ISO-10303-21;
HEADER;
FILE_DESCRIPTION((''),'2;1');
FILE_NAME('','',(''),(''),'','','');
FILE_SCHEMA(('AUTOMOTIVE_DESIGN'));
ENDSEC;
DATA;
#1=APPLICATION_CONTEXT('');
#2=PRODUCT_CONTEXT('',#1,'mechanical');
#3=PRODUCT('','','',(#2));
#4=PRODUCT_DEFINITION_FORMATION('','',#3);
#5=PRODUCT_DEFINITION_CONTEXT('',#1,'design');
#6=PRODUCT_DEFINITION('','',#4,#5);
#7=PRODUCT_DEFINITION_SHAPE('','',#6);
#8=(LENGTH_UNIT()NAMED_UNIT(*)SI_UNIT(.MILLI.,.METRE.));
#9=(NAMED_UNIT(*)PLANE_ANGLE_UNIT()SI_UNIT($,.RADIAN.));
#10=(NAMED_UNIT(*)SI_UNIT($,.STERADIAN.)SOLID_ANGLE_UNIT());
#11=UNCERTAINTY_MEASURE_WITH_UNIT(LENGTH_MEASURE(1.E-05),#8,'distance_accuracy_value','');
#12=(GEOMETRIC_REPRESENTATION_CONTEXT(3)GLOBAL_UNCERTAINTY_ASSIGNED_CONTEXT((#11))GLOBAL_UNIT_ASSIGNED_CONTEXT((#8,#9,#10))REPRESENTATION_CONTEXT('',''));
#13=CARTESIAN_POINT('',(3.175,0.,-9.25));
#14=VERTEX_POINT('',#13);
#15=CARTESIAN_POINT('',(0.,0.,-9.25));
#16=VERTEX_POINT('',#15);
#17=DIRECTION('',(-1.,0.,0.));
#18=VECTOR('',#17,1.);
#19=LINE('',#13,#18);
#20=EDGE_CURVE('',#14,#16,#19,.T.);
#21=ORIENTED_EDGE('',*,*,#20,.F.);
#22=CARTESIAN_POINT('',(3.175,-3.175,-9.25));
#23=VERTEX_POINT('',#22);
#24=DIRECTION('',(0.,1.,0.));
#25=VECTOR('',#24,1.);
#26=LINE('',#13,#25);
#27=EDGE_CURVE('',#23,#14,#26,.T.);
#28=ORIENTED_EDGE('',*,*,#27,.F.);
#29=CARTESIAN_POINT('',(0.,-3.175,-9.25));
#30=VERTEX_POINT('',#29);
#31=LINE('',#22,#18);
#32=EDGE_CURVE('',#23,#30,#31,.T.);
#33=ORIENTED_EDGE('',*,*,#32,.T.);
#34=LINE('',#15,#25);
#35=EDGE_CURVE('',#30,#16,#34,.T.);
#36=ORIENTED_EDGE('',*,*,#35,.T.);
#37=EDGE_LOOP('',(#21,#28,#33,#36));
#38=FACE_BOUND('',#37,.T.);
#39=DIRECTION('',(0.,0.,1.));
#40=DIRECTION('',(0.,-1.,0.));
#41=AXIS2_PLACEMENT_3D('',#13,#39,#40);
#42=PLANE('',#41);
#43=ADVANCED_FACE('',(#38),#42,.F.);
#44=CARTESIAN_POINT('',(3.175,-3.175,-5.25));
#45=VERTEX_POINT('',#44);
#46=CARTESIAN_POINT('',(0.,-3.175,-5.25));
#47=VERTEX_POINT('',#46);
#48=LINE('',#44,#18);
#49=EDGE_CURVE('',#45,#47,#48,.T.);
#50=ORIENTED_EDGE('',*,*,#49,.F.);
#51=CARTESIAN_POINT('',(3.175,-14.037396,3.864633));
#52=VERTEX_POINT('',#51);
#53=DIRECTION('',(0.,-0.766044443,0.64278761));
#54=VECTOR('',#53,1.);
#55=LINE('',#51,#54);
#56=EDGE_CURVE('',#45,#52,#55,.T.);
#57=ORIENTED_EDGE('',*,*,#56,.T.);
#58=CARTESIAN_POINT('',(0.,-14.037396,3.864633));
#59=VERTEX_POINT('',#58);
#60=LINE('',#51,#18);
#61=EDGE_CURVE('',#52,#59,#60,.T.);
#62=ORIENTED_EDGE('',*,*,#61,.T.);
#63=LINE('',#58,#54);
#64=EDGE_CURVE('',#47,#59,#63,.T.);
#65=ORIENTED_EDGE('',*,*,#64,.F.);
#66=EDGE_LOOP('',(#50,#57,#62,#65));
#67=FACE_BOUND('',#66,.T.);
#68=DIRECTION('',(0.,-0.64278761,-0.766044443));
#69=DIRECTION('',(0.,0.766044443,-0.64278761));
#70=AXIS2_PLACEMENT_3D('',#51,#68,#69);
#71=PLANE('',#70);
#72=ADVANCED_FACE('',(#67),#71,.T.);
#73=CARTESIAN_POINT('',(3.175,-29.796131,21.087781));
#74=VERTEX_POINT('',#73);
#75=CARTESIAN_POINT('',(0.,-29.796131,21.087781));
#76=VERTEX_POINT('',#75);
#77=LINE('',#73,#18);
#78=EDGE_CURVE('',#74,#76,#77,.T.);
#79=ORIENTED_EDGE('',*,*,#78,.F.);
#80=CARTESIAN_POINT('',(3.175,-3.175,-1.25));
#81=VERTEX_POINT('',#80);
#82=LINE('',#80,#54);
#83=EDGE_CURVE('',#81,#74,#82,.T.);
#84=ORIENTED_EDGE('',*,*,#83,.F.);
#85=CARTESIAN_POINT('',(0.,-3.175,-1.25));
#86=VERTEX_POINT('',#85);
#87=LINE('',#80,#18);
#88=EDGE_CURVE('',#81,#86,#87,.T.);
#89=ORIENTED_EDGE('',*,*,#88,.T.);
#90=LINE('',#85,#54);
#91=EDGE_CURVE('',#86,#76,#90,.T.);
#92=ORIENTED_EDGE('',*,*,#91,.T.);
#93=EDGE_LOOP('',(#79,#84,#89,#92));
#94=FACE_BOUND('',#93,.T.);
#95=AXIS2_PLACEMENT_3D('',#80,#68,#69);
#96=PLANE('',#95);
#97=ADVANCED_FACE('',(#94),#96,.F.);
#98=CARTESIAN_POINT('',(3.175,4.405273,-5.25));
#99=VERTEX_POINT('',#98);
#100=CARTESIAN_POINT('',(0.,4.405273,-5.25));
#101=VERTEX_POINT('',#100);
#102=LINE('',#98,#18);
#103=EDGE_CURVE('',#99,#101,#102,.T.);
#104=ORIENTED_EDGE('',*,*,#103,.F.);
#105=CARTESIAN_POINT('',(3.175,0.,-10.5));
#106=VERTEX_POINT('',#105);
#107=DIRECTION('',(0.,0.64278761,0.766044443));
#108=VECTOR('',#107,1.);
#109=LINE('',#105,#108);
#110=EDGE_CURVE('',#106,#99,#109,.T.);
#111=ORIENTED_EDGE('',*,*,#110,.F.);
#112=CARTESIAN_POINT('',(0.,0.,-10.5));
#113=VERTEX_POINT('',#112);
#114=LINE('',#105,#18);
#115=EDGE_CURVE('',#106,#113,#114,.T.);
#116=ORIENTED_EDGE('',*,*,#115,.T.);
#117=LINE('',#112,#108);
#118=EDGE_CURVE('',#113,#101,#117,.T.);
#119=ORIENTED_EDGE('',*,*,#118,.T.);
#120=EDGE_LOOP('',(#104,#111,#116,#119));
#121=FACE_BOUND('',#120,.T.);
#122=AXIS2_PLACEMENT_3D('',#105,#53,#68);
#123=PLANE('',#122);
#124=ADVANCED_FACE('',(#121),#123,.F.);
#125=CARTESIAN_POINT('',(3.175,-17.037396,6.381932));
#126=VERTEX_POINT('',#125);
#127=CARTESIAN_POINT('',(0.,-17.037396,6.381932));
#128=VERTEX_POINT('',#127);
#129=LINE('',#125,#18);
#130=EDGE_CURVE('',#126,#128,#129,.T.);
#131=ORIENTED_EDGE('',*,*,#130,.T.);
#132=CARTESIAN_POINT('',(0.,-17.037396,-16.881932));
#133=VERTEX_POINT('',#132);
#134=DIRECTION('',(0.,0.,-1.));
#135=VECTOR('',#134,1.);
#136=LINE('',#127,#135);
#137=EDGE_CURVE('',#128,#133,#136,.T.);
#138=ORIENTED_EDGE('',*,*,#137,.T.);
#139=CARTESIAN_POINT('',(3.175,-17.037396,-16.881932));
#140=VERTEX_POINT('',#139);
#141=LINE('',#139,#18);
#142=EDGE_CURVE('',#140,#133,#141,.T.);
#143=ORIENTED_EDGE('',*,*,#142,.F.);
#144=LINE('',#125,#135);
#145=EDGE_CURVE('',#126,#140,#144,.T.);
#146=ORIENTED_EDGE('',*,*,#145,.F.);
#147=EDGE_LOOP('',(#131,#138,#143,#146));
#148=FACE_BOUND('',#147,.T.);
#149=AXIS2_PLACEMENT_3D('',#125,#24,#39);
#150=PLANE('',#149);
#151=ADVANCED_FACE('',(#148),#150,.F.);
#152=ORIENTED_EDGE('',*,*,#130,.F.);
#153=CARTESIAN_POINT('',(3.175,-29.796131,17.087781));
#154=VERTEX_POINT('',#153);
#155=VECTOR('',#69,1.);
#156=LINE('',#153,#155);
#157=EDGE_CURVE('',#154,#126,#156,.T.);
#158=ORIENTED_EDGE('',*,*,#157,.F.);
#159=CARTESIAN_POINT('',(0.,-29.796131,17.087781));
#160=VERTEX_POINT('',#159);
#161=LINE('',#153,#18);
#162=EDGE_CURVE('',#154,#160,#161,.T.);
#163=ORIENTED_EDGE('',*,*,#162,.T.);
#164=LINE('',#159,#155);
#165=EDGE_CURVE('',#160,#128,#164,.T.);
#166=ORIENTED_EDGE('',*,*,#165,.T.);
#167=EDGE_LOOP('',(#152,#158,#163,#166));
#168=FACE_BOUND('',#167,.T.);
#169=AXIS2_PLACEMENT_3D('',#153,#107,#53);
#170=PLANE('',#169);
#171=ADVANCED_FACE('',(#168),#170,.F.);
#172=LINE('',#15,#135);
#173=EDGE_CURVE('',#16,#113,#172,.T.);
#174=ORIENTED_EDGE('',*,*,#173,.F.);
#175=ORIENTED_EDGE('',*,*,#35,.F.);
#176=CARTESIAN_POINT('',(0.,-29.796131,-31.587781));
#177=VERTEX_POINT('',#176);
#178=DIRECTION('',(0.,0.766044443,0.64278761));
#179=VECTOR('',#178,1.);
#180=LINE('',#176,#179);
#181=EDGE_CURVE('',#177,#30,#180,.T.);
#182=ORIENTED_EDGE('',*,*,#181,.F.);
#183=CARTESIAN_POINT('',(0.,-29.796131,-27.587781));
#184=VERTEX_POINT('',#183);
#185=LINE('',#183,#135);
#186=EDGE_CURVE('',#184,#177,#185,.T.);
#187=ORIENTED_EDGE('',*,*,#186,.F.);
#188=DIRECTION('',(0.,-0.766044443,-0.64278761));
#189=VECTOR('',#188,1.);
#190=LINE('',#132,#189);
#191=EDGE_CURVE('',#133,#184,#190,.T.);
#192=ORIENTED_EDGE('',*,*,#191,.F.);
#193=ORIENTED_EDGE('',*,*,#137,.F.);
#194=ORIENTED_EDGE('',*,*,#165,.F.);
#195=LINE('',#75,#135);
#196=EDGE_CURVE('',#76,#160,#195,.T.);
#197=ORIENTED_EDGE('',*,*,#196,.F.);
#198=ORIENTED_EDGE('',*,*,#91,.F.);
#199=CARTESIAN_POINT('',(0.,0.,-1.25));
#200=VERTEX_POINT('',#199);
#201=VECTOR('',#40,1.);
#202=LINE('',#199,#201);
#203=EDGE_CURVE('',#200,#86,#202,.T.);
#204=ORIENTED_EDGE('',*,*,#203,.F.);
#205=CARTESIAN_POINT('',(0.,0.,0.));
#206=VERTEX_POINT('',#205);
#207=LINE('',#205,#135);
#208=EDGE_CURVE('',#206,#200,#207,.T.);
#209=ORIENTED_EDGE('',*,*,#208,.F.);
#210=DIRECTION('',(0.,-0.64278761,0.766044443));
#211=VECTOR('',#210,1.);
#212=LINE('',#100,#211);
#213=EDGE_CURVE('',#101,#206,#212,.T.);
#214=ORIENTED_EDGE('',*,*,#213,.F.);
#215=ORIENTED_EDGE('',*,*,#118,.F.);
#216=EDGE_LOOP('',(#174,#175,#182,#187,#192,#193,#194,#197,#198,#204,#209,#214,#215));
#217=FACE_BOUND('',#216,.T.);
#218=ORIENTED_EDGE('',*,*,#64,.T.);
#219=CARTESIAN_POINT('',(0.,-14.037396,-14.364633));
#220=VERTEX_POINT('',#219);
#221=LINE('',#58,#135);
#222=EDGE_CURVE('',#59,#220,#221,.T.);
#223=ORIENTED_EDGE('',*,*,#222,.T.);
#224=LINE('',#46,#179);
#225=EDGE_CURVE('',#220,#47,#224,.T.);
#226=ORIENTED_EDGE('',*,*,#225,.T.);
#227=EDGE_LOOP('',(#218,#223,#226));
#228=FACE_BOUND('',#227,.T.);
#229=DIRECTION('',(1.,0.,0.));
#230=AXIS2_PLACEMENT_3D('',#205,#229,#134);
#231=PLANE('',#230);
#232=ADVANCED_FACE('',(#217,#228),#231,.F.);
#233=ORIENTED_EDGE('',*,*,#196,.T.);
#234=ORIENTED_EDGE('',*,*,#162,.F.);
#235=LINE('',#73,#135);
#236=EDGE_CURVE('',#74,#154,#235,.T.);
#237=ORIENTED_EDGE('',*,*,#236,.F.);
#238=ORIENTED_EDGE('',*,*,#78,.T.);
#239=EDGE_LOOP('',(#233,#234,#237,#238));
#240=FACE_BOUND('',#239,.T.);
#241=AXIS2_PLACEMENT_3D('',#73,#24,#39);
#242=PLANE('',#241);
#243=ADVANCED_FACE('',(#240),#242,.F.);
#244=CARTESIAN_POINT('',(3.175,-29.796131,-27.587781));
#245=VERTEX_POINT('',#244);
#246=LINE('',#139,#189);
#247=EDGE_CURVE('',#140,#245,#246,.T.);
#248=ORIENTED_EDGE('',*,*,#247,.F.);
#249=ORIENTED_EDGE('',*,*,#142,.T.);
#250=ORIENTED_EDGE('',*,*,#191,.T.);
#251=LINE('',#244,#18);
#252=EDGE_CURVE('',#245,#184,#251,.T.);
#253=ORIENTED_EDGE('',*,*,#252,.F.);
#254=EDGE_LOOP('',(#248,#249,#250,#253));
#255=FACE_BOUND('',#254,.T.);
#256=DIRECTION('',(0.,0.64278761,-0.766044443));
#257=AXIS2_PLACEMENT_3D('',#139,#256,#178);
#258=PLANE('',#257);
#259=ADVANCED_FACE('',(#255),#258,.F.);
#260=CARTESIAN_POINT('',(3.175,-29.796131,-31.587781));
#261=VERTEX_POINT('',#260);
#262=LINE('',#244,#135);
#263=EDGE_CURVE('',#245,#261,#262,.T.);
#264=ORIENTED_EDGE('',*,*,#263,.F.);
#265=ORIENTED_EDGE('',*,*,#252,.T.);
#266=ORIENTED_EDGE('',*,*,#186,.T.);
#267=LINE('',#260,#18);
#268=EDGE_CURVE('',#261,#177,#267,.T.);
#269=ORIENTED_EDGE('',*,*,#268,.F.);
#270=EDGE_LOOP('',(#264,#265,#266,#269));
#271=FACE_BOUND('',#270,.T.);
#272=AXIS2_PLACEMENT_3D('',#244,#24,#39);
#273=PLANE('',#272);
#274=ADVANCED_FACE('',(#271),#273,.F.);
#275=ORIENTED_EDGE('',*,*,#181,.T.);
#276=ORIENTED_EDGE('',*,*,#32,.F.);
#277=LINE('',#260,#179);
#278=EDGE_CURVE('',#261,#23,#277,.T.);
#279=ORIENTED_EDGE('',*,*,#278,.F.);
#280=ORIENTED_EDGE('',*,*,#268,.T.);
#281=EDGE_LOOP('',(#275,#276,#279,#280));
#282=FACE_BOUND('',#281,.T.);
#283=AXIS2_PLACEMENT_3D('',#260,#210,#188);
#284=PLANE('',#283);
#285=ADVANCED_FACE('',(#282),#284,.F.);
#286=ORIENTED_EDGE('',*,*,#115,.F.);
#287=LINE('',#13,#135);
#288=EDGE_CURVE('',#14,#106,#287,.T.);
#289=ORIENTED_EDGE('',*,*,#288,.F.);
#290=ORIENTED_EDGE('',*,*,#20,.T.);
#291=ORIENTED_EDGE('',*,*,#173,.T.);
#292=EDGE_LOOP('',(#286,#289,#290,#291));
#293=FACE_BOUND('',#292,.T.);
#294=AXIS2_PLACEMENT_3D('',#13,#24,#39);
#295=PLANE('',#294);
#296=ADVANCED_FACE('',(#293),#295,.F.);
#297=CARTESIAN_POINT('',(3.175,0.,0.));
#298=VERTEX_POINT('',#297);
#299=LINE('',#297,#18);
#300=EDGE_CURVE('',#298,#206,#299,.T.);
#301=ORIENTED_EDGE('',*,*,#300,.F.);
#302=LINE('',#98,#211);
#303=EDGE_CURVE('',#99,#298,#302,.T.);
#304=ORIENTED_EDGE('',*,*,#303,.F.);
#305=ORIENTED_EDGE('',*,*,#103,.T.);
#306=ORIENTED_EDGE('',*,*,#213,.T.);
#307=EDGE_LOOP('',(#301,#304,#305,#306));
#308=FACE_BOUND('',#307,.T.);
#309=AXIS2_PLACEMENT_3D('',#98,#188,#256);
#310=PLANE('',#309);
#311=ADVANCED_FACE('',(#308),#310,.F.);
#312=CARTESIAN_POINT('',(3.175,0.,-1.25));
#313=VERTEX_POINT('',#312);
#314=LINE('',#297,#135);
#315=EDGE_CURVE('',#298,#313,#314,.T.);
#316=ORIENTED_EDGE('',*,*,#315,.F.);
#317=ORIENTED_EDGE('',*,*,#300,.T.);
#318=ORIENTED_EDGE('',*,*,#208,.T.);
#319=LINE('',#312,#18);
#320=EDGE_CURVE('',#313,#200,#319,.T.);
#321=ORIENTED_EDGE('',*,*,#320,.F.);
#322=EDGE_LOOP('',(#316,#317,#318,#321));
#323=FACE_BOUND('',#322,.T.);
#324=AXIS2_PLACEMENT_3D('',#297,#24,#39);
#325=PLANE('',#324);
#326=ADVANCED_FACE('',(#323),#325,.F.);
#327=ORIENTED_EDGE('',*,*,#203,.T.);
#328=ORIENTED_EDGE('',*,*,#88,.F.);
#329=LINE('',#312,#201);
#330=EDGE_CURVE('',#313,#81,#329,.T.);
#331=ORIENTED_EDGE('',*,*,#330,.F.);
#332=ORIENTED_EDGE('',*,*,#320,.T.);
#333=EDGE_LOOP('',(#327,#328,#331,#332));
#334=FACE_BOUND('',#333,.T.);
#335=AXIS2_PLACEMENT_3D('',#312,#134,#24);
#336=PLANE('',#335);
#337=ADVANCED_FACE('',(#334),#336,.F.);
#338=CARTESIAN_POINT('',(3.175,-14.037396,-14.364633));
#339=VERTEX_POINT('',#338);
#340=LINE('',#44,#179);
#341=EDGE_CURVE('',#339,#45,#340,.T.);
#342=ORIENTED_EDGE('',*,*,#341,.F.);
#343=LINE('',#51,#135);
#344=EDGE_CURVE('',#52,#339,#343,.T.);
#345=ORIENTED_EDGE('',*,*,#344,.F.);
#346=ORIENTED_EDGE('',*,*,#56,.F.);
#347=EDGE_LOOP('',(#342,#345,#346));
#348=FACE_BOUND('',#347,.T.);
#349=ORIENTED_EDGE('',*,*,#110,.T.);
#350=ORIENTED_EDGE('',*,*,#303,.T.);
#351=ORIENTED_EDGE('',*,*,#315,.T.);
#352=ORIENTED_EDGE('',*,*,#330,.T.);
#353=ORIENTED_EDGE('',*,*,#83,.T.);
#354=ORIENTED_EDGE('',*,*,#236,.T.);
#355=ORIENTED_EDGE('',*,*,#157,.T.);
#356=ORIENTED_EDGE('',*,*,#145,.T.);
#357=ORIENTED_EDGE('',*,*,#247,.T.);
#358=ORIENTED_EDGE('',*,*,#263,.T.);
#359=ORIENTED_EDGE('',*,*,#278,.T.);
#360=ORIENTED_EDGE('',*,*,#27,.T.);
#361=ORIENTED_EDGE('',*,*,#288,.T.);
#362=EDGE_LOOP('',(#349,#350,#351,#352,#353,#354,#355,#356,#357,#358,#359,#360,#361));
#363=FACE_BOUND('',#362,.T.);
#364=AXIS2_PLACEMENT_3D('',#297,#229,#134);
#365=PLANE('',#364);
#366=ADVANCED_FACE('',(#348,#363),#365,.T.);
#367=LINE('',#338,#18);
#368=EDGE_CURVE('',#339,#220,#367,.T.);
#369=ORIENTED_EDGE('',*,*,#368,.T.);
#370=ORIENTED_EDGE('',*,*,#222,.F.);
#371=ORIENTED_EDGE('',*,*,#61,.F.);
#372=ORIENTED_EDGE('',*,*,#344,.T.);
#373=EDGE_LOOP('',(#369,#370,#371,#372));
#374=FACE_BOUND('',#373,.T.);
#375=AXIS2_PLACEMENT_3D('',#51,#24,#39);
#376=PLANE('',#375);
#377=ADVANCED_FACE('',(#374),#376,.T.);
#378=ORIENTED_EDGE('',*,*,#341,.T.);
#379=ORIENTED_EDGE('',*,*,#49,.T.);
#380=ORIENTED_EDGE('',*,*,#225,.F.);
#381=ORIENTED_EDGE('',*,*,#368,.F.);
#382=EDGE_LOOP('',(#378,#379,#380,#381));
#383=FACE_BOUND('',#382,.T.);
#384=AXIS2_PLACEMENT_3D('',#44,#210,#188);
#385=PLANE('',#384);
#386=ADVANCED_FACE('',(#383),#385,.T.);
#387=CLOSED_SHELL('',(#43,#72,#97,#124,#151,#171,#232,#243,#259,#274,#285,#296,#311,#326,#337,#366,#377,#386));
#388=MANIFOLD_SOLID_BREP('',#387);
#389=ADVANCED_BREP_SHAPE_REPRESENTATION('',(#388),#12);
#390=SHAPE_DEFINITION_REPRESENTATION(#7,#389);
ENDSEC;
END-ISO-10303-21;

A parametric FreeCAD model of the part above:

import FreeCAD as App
import Part
import Sketcher

V = App.Vector
Q = App.Units.Quantity

doc = App.newDocument("Part")
body = doc.addObject("PartDesign::Body", "Body")

sketch1 = body.newObject("Sketcher::SketchObject", "Sketch")
sketch1.AttachmentSupport = (doc.getObject("YZ_Plane"), [""])
sketch1.MapMode = "FlatFace"
sketch1.addGeometry([
    Part.LineSegment(V(0, 0, 0), V(0, -1.2, 0)),
    Part.LineSegment(V(0, -1.2, 0), V(-3.2, -1.2, 0)),
    Part.LineSegment(V(-3.2, -1.2, 0), V(-29.8, 21.1, 0)),
    Part.LineSegment(V(-29.8, 21.1, 0), V(-29.8, 17.1, 0)),
    Part.LineSegment(V(-29.8, 17.1, 0), V(-17, 6.4, 0)),
    Part.LineSegment(V(-17, 6.4, 0), V(-17, -16.9, 0)),
    Part.LineSegment(V(-17, -16.9, 0), V(-29.8, -27.6, 0)),
    Part.LineSegment(V(-29.8, -27.6, 0), V(-29.8, -31.6, 0)),
    Part.LineSegment(V(-29.8, -31.6, 0), V(-3.2, -9.2, 0)),
    Part.LineSegment(V(-3.2, -9.2, 0), V(0, -9.2, 0)),
    Part.LineSegment(V(0, -9.2, 0), V(0, -10.5, 0)),
    Part.LineSegment(V(0, -10.5, 0), V(4.4, -5.2, 0)),
    Part.LineSegment(V(4.4, -5.2, 0), V(0, 0, 0)),
    Part.LineSegment(V(-14, 3.9, 0), V(-3.2, -5.2, 0)),
    Part.LineSegment(V(-3.2, -5.2, 0), V(-14, -14.4, 0)),
    Part.LineSegment(V(-14, -14.4, 0), V(-14, 3.9, 0)),
], False)
sketch1.addConstraint([
    Sketcher.Constraint("Coincident", 0, 2, 1, 1),
    Sketcher.Constraint("Coincident", 1, 2, 2, 1),
    Sketcher.Constraint("Coincident", 2, 2, 3, 1),
    Sketcher.Constraint("Coincident", 3, 2, 4, 1),
    Sketcher.Constraint("Coincident", 4, 2, 5, 1),
    Sketcher.Constraint("Coincident", 5, 2, 6, 1),
    Sketcher.Constraint("Coincident", 6, 2, 7, 1),
    Sketcher.Constraint("Coincident", 7, 2, 8, 1),
    Sketcher.Constraint("Coincident", 8, 2, 9, 1),
    Sketcher.Constraint("Coincident", 9, 2, 10, 1),
    Sketcher.Constraint("Coincident", 10, 2, 11, 1),
    Sketcher.Constraint("Coincident", 11, 2, 12, 1),
    Sketcher.Constraint("Coincident", 12, 2, 0, 1),
    Sketcher.Constraint("Coincident", 13, 2, 14, 1),
    Sketcher.Constraint("Coincident", 14, 2, 15, 1),
    Sketcher.Constraint("Coincident", 15, 2, 13, 1),
    Sketcher.Constraint("Vertical", 0),
    Sketcher.Constraint("Horizontal", 1),
    Sketcher.Constraint("Vertical", 3),
    Sketcher.Constraint("Vertical", 5),
    Sketcher.Constraint("Vertical", 7),
    Sketcher.Constraint("Horizontal", 9),
    Sketcher.Constraint("Vertical", 10),
    Sketcher.Constraint("Vertical", 15),
    Sketcher.Constraint("Coincident", 12, 2, -1, 1),
    Sketcher.Constraint("PointOnObject", 9, 2, -2),
    Sketcher.Constraint("Parallel", 2, 4),
    Sketcher.Constraint("Parallel", 6, 8),
    Sketcher.Constraint("Perpendicular", 4, 11),
    Sketcher.Constraint("Perpendicular", 8, 12),
    Sketcher.Constraint("Perpendicular", 11, 13),
    Sketcher.Constraint("Perpendicular", 12, 14),
    Sketcher.Constraint("Horizontal", 11, 2, 13, 2),
    Sketcher.Constraint("Vertical", 3, 2, 6, 2),
    Sketcher.Constraint("Vertical", 1, 2, 8, 2),
    Sketcher.Constraint("Vertical", 8, 2, 13, 2),
    Sketcher.Constraint("Equal", 3, 7),
    Sketcher.Constraint("Equal", 0, 10),
    Sketcher.Constraint("Equal", 4, 6),
    Sketcher.Constraint("DistanceY", 3, 2, 3, 1, Q("4 mm")),
    Sketcher.Constraint("Angle", 2, Q("140 deg")),
    Sketcher.Constraint("DistanceY", 8, 2, 1, 2, Q("8 mm")),
    Sketcher.Constraint("DistanceX", 5, 2, 14, 2, Q("3 mm")),
    Sketcher.Constraint("DistanceY", 0, 2, 0, 1, Q("1.25 mm")),
    Sketcher.Constraint("DistanceX", 1, 2, 1, 1, Q("3.175 mm")),
    Sketcher.Constraint("Distance", 2, Q("34.751419 mm")),
    Sketcher.Constraint("Distance", 13, Q("14.179851 mm")),
])
pad1 = body.newObject("PartDesign::Pad", "Pad")
pad1.Profile = sketch1
pad1.Length = 3.175

doc.recompute()
